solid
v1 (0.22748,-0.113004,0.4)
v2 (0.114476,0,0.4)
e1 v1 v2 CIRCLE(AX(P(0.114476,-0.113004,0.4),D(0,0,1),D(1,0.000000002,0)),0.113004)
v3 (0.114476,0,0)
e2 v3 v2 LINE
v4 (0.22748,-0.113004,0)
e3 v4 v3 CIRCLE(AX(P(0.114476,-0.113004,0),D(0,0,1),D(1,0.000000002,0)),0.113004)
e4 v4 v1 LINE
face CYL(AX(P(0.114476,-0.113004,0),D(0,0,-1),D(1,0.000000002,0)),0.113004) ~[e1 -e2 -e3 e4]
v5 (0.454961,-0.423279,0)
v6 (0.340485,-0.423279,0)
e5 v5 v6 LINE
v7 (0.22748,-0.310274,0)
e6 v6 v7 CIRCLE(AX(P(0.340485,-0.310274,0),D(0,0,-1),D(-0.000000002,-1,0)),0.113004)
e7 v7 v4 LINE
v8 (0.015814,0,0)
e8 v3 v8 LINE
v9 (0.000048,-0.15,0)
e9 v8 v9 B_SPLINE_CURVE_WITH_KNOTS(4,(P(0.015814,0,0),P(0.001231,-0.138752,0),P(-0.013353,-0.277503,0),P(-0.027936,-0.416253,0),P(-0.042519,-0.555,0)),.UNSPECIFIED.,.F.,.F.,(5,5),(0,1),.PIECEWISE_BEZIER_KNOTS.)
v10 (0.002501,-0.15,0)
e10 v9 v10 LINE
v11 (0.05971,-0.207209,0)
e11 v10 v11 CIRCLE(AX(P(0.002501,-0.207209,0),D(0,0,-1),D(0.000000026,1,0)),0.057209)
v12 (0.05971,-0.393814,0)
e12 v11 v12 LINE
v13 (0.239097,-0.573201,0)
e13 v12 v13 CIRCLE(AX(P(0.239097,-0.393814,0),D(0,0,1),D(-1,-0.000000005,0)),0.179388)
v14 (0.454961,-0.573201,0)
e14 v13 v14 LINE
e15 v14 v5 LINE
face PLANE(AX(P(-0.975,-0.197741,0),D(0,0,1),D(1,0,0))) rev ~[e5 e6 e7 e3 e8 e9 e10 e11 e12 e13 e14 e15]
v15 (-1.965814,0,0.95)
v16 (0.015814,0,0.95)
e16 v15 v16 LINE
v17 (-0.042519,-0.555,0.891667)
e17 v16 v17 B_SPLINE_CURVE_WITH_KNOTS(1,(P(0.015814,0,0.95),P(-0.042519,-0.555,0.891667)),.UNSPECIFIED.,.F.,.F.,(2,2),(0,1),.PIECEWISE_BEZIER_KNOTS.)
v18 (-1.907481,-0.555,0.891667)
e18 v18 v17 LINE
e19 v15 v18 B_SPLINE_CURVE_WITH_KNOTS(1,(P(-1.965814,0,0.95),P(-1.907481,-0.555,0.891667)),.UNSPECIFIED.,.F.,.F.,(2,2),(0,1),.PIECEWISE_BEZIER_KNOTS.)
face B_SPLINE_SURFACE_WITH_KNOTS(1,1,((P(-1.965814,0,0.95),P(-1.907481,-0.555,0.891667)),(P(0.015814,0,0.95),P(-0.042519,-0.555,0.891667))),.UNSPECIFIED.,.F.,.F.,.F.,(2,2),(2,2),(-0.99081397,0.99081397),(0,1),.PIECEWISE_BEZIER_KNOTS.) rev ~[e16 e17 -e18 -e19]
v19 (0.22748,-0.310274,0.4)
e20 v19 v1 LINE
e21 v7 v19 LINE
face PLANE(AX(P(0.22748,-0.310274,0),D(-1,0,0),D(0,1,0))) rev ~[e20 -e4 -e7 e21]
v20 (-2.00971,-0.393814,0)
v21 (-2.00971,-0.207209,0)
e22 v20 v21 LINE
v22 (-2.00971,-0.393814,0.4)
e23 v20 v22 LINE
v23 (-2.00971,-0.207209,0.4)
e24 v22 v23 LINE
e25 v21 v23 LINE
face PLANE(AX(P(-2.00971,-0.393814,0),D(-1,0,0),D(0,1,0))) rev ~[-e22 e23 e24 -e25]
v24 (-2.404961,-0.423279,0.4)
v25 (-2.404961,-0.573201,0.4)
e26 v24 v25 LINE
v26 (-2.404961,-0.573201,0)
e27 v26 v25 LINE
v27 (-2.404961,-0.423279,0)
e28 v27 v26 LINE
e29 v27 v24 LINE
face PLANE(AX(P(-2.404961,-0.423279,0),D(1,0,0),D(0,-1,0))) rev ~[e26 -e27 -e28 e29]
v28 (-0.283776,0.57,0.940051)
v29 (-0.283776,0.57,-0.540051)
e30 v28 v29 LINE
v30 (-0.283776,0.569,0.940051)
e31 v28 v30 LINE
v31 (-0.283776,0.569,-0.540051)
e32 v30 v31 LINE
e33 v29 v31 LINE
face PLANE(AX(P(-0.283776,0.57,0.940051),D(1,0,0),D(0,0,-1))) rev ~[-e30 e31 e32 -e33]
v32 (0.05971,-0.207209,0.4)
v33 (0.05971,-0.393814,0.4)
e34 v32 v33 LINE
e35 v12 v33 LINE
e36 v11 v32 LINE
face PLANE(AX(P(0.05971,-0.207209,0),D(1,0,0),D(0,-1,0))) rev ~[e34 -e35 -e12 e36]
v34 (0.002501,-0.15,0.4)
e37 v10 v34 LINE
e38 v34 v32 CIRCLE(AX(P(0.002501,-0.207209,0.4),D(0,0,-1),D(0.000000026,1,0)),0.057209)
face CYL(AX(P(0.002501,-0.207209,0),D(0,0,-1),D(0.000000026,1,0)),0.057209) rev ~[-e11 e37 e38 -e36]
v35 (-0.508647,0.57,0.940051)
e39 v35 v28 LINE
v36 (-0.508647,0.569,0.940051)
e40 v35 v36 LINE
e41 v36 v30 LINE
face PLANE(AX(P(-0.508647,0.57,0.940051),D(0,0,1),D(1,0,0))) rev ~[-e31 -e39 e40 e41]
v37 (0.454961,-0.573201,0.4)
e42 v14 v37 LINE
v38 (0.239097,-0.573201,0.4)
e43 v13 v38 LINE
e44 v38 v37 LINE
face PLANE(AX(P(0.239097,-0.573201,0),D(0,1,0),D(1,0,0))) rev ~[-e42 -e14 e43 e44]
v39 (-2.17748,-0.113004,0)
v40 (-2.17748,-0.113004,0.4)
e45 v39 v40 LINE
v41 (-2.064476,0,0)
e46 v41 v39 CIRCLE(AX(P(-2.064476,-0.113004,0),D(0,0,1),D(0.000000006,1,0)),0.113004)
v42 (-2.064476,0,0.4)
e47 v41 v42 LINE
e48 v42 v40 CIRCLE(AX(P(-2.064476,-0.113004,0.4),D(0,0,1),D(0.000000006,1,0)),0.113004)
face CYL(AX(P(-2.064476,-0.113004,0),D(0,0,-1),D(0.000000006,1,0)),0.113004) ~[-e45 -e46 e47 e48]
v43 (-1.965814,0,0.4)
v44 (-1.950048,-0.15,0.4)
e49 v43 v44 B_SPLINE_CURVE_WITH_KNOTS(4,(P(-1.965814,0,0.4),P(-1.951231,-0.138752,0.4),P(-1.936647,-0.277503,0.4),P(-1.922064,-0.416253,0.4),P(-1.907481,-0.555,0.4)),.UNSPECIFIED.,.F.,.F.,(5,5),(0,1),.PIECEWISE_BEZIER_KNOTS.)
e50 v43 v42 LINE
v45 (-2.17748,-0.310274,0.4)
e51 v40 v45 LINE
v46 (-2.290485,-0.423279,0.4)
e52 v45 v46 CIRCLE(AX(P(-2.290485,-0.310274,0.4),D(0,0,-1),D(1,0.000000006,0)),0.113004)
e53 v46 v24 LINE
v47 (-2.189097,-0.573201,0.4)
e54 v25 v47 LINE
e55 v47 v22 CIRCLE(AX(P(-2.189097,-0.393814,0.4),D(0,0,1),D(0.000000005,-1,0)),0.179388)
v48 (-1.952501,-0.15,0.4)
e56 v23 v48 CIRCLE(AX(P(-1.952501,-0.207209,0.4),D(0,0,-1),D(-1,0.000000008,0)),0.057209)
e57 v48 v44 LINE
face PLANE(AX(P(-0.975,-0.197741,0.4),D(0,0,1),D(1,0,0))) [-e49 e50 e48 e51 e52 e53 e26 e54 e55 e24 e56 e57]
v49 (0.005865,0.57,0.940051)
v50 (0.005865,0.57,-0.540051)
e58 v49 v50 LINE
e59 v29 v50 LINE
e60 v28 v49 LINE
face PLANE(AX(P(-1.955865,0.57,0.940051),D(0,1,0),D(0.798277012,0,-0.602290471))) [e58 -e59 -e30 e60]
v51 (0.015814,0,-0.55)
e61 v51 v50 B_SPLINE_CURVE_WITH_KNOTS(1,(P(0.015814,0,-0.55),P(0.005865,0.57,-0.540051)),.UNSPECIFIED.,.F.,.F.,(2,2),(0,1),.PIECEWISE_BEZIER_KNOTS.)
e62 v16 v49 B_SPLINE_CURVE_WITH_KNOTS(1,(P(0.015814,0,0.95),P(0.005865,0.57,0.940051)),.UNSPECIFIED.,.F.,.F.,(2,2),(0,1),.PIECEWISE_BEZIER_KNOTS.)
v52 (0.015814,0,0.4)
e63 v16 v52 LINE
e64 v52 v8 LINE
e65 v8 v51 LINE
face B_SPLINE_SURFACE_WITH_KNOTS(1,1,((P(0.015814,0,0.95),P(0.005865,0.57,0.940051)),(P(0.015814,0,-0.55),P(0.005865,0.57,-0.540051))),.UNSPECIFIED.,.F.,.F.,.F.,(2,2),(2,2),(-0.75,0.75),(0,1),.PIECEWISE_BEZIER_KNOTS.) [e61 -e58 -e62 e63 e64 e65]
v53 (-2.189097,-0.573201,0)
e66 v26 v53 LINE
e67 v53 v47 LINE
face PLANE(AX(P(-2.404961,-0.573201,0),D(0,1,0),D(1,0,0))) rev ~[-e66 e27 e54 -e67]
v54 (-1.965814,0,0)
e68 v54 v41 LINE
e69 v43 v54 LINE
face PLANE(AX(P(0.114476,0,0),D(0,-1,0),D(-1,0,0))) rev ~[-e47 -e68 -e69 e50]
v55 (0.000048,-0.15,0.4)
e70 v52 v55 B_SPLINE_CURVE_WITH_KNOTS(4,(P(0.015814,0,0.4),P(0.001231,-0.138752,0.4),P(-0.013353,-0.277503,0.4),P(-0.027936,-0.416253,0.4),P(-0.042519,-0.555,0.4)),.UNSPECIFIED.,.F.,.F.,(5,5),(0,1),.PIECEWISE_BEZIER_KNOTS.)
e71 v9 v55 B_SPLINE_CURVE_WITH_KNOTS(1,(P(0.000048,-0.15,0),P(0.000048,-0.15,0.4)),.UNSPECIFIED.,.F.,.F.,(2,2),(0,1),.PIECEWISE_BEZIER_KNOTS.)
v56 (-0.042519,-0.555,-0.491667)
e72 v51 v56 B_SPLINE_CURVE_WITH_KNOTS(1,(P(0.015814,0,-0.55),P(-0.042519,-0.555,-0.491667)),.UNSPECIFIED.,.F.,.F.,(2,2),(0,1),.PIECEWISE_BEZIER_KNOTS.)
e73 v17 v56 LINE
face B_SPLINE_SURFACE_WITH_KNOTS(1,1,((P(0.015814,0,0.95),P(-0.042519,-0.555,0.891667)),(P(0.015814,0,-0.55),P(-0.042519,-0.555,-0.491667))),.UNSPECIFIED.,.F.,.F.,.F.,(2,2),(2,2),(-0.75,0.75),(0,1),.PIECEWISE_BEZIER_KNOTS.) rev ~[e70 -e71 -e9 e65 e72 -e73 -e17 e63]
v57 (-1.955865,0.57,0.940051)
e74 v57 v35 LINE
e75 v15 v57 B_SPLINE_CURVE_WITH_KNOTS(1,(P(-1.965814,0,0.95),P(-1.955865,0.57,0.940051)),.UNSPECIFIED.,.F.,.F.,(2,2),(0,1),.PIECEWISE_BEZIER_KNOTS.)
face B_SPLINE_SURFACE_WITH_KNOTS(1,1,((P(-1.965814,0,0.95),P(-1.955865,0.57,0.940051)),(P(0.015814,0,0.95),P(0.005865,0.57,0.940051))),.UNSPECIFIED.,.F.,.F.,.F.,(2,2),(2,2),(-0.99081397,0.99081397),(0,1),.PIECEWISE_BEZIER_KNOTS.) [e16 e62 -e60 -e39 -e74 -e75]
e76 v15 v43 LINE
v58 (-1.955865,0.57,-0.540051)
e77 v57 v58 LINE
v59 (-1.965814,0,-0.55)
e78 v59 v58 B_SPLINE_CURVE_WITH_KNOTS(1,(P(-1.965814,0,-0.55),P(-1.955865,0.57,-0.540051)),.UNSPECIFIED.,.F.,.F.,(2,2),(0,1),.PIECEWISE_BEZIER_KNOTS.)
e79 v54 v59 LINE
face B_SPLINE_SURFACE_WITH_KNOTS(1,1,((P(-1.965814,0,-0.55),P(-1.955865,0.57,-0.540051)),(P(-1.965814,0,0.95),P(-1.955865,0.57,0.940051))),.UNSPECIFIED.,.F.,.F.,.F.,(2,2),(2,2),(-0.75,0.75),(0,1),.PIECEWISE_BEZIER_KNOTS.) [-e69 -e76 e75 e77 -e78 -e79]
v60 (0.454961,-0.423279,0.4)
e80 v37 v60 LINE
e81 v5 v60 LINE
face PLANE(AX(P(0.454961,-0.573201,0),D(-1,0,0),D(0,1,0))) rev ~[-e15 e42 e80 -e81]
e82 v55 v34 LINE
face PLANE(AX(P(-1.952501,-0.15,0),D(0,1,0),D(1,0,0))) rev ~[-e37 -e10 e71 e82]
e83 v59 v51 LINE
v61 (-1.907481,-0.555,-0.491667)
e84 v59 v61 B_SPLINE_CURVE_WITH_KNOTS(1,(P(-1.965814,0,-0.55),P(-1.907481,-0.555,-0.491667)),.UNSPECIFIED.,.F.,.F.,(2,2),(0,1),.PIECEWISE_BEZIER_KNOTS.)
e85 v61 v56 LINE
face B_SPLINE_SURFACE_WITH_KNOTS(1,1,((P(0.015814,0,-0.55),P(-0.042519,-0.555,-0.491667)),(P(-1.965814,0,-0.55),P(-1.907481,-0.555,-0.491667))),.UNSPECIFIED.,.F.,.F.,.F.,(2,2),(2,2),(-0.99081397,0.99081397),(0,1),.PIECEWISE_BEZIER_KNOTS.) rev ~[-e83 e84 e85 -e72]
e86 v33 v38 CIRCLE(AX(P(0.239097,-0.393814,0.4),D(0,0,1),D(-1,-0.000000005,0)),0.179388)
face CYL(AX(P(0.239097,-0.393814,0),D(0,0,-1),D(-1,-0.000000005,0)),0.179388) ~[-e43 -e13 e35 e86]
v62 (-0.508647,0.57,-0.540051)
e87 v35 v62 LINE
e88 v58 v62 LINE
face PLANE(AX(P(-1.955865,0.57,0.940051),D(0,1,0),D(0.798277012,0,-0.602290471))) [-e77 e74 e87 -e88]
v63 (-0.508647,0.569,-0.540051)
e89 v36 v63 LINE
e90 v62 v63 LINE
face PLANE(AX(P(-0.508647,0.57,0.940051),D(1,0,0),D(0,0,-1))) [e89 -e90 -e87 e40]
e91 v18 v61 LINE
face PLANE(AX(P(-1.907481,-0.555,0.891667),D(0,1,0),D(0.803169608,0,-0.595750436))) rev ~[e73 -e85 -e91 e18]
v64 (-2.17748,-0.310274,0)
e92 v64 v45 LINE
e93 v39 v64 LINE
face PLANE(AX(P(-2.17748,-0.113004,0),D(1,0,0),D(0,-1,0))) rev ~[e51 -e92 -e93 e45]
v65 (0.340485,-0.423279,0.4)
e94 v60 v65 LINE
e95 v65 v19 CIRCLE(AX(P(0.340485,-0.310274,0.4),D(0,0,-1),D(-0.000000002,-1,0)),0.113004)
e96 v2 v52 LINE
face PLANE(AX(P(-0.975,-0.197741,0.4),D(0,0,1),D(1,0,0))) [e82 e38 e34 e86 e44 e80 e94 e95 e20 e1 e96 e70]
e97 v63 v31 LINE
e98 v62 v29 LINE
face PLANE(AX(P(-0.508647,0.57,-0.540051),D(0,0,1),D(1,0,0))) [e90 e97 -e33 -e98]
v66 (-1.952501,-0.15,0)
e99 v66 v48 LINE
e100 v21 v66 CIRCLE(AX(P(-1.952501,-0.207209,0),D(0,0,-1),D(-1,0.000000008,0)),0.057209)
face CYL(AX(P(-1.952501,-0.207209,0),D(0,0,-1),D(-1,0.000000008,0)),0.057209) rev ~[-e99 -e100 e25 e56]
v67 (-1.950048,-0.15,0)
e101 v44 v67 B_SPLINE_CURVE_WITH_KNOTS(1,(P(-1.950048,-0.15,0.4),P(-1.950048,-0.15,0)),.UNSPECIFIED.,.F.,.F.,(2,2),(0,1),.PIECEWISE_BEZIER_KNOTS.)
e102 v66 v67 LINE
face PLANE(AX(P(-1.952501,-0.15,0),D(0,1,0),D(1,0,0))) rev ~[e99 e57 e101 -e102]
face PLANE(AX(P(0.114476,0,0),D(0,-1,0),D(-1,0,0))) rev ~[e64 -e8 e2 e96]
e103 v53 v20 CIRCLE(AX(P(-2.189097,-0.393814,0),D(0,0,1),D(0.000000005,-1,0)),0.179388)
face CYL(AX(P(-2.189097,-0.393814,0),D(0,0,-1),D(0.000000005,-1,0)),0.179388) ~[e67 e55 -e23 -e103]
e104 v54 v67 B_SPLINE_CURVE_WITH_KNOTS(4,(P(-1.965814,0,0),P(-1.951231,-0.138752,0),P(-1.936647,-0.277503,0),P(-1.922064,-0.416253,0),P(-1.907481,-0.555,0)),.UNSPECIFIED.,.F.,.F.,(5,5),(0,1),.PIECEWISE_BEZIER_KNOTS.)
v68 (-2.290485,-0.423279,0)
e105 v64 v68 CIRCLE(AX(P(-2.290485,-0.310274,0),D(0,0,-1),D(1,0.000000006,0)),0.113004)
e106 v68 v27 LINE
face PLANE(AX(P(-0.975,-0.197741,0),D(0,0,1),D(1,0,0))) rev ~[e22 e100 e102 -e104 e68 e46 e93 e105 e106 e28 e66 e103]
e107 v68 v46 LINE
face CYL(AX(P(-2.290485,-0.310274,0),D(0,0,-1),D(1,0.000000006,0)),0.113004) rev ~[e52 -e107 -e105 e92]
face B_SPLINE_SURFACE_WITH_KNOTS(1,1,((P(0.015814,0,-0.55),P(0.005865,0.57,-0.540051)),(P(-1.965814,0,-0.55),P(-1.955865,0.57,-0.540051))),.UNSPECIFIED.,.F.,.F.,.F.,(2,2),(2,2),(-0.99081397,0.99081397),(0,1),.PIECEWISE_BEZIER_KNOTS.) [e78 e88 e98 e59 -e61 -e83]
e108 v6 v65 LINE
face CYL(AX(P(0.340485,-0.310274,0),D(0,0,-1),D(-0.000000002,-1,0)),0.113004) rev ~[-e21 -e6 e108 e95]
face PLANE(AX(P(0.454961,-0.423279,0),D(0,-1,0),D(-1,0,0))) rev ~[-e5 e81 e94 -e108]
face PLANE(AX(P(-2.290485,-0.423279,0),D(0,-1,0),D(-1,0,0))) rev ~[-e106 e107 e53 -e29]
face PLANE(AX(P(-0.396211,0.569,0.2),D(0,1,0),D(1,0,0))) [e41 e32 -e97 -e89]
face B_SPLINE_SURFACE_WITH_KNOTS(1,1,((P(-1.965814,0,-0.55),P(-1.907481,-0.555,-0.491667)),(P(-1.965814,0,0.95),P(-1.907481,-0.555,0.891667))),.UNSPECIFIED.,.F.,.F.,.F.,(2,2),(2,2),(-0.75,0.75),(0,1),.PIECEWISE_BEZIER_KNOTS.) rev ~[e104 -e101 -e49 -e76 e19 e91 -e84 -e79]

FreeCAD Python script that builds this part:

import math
import FreeCAD as App
import Part
import Sketcher

doc = App.newDocument("Part")
body = doc.addObject("PartDesign::Body", "Body")

# Sketch on XY plane
sketch1 = doc.addObject("Sketcher::SketchObject", "Sketch")
body.addObject(sketch1)
sketch1.AttachmentSupport = (doc.XY_Plane, [""])
sketch1.MapMode = "FlatFace"
sketch1.addGeometry([
    Part.ArcOfCircle(Part.Circle(App.Vector(-2.06, -0.11, 0), App.Vector(0, 0, 1), 0.11), math.radians(90), math.radians(180)),  # 0
    Part.LineSegment(App.Vector(-2.18, -0.11, 0), App.Vector(-2.18, -0.31, 0)),  # 1
    Part.ArcOfCircle(Part.Circle(App.Vector(-2.29, -0.31, 0), App.Vector(0, 0, 1), 0.11), math.radians(-90), math.radians(0)),  # 2
    Part.LineSegment(App.Vector(-2.29, -0.42, 0), App.Vector(-2.4, -0.42, 0)),  # 3
    Part.LineSegment(App.Vector(-2.4, -0.42, 0), App.Vector(-2.4, -0.57, 0)),  # 4
    Part.LineSegment(App.Vector(-2.4, -0.57, 0), App.Vector(-2.19, -0.57, 0)),  # 5
    Part.ArcOfCircle(Part.Circle(App.Vector(-2.19, -0.39, 0), App.Vector(0, 0, 1), 0.18), math.radians(-90), math.radians(0)),  # 6
    Part.LineSegment(App.Vector(-2.01, -0.39, 0), App.Vector(-2.01, -0.21, 0)),  # 7
    Part.ArcOfCircle(Part.Circle(App.Vector(-1.95, -0.21, 0), App.Vector(0, 0, 1), 0.06), math.radians(90), math.radians(180)),  # 8
    Part.LineSegment(App.Vector(-1.95, -0.15, 0), App.Vector(0, -0.15, 0)),  # 9
    Part.ArcOfCircle(Part.Circle(App.Vector(0, -0.21, 0), App.Vector(0, 0, 1), 0.06), math.radians(0), math.radians(90)),  # 10
    Part.LineSegment(App.Vector(0.06, -0.21, 0), App.Vector(0.06, -0.39, 0)),  # 11
    Part.ArcOfCircle(Part.Circle(App.Vector(0.24, -0.39, 0), App.Vector(0, 0, 1), 0.18), math.radians(-180), math.radians(-90)),  # 12
    Part.LineSegment(App.Vector(0.24, -0.57, 0), App.Vector(0.45, -0.57, 0)),  # 13
    Part.LineSegment(App.Vector(0.45, -0.57, 0), App.Vector(0.45, -0.42, 0)),  # 14
    Part.LineSegment(App.Vector(0.45, -0.42, 0), App.Vector(0.34, -0.42, 0)),  # 15
    Part.ArcOfCircle(Part.Circle(App.Vector(0.34, -0.31, 0), App.Vector(0, 0, 1), 0.11), math.radians(180), math.radians(270)),  # 16
    Part.LineSegment(App.Vector(0.23, -0.31, 0), App.Vector(0.23, -0.11, 0)),  # 17
    Part.ArcOfCircle(Part.Circle(App.Vector(0.11, -0.11, 0), App.Vector(0, 0, 1), 0.11), math.radians(0), math.radians(90)),  # 18
    Part.LineSegment(App.Vector(0.11, 0, 0), App.Vector(-2.06, 0, 0)),  # 19
], False)
sketch1.addConstraint([
    Sketcher.Constraint("Tangent", 0, 2, 1, 1),
    Sketcher.Constraint("Tangent", 1, 2, 2, 2),
    Sketcher.Constraint("Tangent", 2, 1, 3, 1),
    Sketcher.Constraint("Coincident", 3, 2, 4, 1),
    Sketcher.Constraint("Coincident", 4, 2, 5, 1),
    Sketcher.Constraint("Tangent", 5, 2, 6, 1),
    Sketcher.Constraint("Tangent", 6, 2, 7, 1),
    Sketcher.Constraint("Tangent", 7, 2, 8, 2),
    Sketcher.Constraint("Tangent", 8, 1, 9, 1),
    Sketcher.Constraint("Tangent", 9, 2, 10, 2),
    Sketcher.Constraint("Tangent", 10, 1, 11, 1),
    Sketcher.Constraint("Tangent", 11, 2, 12, 1),
    Sketcher.Constraint("Tangent", 12, 2, 13, 1),
    Sketcher.Constraint("Coincident", 13, 2, 14, 1),
    Sketcher.Constraint("Coincident", 14, 2, 15, 1),
    Sketcher.Constraint("Tangent", 15, 2, 16, 2),
    Sketcher.Constraint("Tangent", 16, 1, 17, 1),
    Sketcher.Constraint("Tangent", 17, 2, 18, 1),
    Sketcher.Constraint("Tangent", 18, 2, 19, 1),
    Sketcher.Constraint("Tangent", 19, 2, 0, 1),
    Sketcher.Constraint("Vertical", 1),
    Sketcher.Constraint("Horizontal", 3),
    Sketcher.Constraint("Vertical", 4),
    Sketcher.Constraint("Horizontal", 5),
    Sketcher.Constraint("Vertical", 7),
    Sketcher.Constraint("Horizontal", 9),
    Sketcher.Constraint("Vertical", 11),
    Sketcher.Constraint("Horizontal", 13),
    Sketcher.Constraint("Vertical", 14),
    Sketcher.Constraint("Horizontal", 15),
    Sketcher.Constraint("Vertical", 17),
    Sketcher.Constraint("Horizontal", 19),
    Sketcher.Constraint("Equal", 0, 2),
    Sketcher.Constraint("Equal", 8, 10),
    Sketcher.Constraint("Equal", 6, 12),
    Sketcher.Constraint("Equal", 2, 16),
    Sketcher.Constraint("Equal", 16, 18),
    Sketcher.Constraint("PointOnObject", 18, 2, -1),
    Sketcher.Constraint("Horizontal", 6, 3, 12, 3),
    Sketcher.Constraint("Horizontal", 2, 3, 16, 3),
    Sketcher.Constraint("Equal", 5, 13),
    Sketcher.Constraint("Equal", 3, 15),
    Sketcher.Constraint("DistanceY", 8, 1, -1, 1, 0.15),
    Sketcher.Constraint("Radius", 8, 0.057209),
    Sketcher.Constraint("Radius", 0, 0.113004),
    Sketcher.Constraint("Radius", 6, 0.179388),
    Sketcher.Constraint("DistanceY", 1, 2, 1, 1, 0.19727),
    Sketcher.Constraint("DistanceX", 8, 3, -1, 1, 1.952501),
    Sketcher.Constraint("DistanceX", -1, 1, 10, 3, 0.002501),
    Sketcher.Constraint("DistanceY", 4, 2, -1, 1, 0.573201),
    Sketcher.Constraint("DistanceX", 3, 2, 3, 1, 0.114476),
    Sketcher.Constraint("DistanceX", 5, 1, 5, 2, 0.215863),
])
pad1 = doc.addObject("PartDesign::Pad", "Pad")
body.addObject(pad1)
pad1.Profile = sketch1
pad1.Length = 0.4

# Sketch on XZ plane
sketch2 = doc.addObject("Sketcher::SketchObject", "Sketch001")
body.addObject(sketch2)
sketch2.AttachmentSupport = (doc.XZ_Plane, [""])
sketch2.MapMode = "FlatFace"
sketch2.addGeometry([
    Part.LineSegment(App.Vector(-2, -0.6, 0), App.Vector(-2, 0.9, 0)),
    Part.LineSegment(App.Vector(-2, 0.9, 0), App.Vector(0, 0.9, 0)),
    Part.LineSegment(App.Vector(0, 0.9, 0), App.Vector(0, -0.6, 0)),
    Part.LineSegment(App.Vector(0, -0.6, 0), App.Vector(-2, -0.6, 0)),
], False)
sketch2.addConstraint([
    Sketcher.Constraint("Coincident", 0, 2, 1, 1),
    Sketcher.Constraint("Coincident", 1, 2, 2, 1),
    Sketcher.Constraint("Coincident", 2, 2, 3, 1),
    Sketcher.Constraint("Coincident", 3, 2, 0, 1),
    Sketcher.Constraint("Vertical", 0),
    Sketcher.Constraint("Horizontal", 1),
    Sketcher.Constraint("Vertical", 2),
    Sketcher.Constraint("Horizontal", 3),
    Sketcher.Constraint("DistanceY", 0, 1, 0, 2, 1.5),
    Sketcher.Constraint("DistanceY", -1, 1, 0, 2, 0.95),
    Sketcher.Constraint("DistanceX", 1, 1, 1, 2, 1.981628),
    Sketcher.Constraint("DistanceX", 0, 2, -1, 1, 1.965814),
])
pad2 = doc.addObject("PartDesign::Pad", "Pad001")
body.addObject(pad2)
pad2.Profile = sketch2
pad2.Length = 0.57
pad2.Reversed = True
pad2.TaperAngle = -1

# Sketch on XZ plane
sketch3 = doc.addObject("Sketcher::SketchObject", "Sketch002")
body.addObject(sketch3)
sketch3.AttachmentSupport = (doc.XZ_Plane, [""])
sketch3.MapMode = "FlatFace"
sketch3.addGeometry([
    Part.LineSegment(App.Vector(-2, -0.6, 0), App.Vector(-2, 0.9, 0)),
    Part.LineSegment(App.Vector(-2, 0.9, 0), App.Vector(0, 0.9, 0)),
    Part.LineSegment(App.Vector(0, 0.9, 0), App.Vector(0, -0.6, 0)),
    Part.LineSegment(App.Vector(0, -0.6, 0), App.Vector(-2, -0.6, 0)),
], False)
sketch3.addConstraint([
    Sketcher.Constraint("Coincident", 0, 2, 1, 1),
    Sketcher.Constraint("Coincident", 1, 2, 2, 1),
    Sketcher.Constraint("Coincident", 2, 2, 3, 1),
    Sketcher.Constraint("Coincident", 3, 2, 0, 1),
    Sketcher.Constraint("Vertical", 0),
    Sketcher.Constraint("Horizontal", 1),
    Sketcher.Constraint("Vertical", 2),
    Sketcher.Constraint("Horizontal", 3),
    Sketcher.Constraint("DistanceY", 0, 1, 0, 2, 1.5),
    Sketcher.Constraint("DistanceY", -1, 1, 0, 2, 0.95),
    Sketcher.Constraint("DistanceX", 1, 1, 1, 2, 1.981628),
    Sketcher.Constraint("DistanceX", 0, 2, -1, 1, 1.965814),
])
pad3 = doc.addObject("PartDesign::Pad", "Pad002")
body.addObject(pad3)
pad3.Profile = sketch3
pad3.Length = 0.555
pad3.TaperAngle = -6

# Sketch on XZ plane
sketch4 = doc.addObject("Sketcher::SketchObject", "Sketch003")
body.addObject(sketch4)
sketch4.AttachmentSupport = (doc.XZ_Plane, [""])
sketch4.MapMode = "FlatFace"
sketch4.AttachmentOffset = App.Placement(App.Vector(0, 0, -0.57), App.Rotation())
sketch4.addGeometry([
    Part.LineSegment(App.Vector(-0.51, -0.54, 0), App.Vector(-0.51, 0.94, 0)),
    Part.LineSegment(App.Vector(-0.51, 0.94, 0), App.Vector(-0.28, 0.94, 0)),
    Part.LineSegment(App.Vector(-0.28, 0.94, 0), App.Vector(-0.28, -0.54, 0)),
    Part.LineSegment(App.Vector(-0.28, -0.54, 0), App.Vector(-0.51, -0.54, 0)),
], False)
sketch4.addConstraint([
    Sketcher.Constraint("Coincident", 0, 2, 1, 1),
    Sketcher.Constraint("Coincident", 1, 2, 2, 1),
    Sketcher.Constraint("Coincident", 2, 2, 3, 1),
    Sketcher.Constraint("Coincident", 3, 2, 0, 1),
    Sketcher.Constraint("Vertical", 0),
    Sketcher.Constraint("Horizontal", 1),
    Sketcher.Constraint("Vertical", 2),
    Sketcher.Constraint("Horizontal", 3),
    Sketcher.Constraint("DistanceY", 0, 1, 0, 2, 1.480101),
    Sketcher.Constraint("DistanceX", 1, 1, 1, 2, 0.224871),
    Sketcher.Constraint("DistanceY", -1, 1, 0, 2, 0.940051),
    Sketcher.Constraint("DistanceX", 0, 2, -1, 1, 0.508647),
])
pocket1 = doc.addObject("PartDesign::Pocket", "Pocket")
body.addObject(pocket1)
pocket1.Profile = sketch4
pocket1.Length = 0.001
pocket1.Reversed = True

doc.recompute()
